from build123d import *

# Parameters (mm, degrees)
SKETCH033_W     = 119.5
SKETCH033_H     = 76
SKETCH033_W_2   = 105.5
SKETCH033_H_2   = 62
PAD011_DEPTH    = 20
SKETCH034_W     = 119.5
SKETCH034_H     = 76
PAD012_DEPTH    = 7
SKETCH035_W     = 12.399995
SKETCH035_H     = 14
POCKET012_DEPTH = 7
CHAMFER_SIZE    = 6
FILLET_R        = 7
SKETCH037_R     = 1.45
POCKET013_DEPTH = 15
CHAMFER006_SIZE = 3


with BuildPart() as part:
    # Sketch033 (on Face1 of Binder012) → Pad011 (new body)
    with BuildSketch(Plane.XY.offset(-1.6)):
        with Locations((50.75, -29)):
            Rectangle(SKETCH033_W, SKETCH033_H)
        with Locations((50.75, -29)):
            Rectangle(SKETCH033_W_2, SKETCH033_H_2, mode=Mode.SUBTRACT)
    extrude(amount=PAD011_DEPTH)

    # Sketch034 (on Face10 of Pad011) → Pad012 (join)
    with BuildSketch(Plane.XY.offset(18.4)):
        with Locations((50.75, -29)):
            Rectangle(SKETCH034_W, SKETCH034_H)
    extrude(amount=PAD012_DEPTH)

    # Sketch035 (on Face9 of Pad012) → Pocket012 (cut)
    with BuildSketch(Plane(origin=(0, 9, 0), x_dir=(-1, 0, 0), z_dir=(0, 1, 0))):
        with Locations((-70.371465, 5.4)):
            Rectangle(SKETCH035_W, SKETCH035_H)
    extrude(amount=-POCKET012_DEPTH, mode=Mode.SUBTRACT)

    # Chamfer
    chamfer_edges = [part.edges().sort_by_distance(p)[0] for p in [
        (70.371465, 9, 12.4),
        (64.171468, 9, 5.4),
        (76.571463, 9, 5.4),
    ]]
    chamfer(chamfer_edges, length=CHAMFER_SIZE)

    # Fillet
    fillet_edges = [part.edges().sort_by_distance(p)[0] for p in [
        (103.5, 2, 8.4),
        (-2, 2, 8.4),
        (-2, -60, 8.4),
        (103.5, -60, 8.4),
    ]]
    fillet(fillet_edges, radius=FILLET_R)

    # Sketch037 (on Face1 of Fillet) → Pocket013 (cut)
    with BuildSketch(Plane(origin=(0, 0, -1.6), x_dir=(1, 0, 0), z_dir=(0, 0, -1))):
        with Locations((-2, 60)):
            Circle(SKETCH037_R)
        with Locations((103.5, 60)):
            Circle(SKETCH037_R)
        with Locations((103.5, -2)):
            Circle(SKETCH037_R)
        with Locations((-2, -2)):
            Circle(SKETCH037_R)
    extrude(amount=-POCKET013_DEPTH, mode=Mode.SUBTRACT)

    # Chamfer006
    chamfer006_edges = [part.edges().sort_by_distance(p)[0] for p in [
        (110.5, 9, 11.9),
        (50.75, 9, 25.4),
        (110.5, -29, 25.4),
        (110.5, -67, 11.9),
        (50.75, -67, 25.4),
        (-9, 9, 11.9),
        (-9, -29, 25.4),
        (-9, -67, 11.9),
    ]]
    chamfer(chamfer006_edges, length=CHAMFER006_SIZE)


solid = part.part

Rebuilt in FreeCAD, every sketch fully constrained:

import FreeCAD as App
import Part
import Sketcher
from FreeCAD import Vector
Q = App.Units.Quantity


def edges_at(feature, points):
    """Names of the edges that pass closest to the given points."""
    edges = feature.Shape.Edges
    near = lambda p: min(range(len(edges)), key=lambda i: edges[i].distToShape(Part.Vertex(*p))[0])
    return sorted({f"Edge{near(p) + 1}" for p in points})


def add_polygon(sketch, points):
    """Adds a closed chain of lines whose ends are joined by coincident constraints."""
    first, n = sketch.GeometryCount, len(points)
    for a, b in zip(points, points[1:] + points[:1]):
        sketch.addGeometry(Part.LineSegment(App.Vector(*a, 0), App.Vector(*b, 0)), False)
    for i in range(n):
        sketch.addConstraint(Sketcher.Constraint("Coincident", first + i, 2, first + (i + 1) % n, 1))

doc = App.newDocument("Part")
body = doc.addObject("PartDesign::Body", "Body")

# Sketch on XY plane
sketch1 = body.newObject("Sketcher::SketchObject", "Sketch")
sketch1.AttachmentSupport = (doc.getObject("XY_Plane"), [""])
sketch1.MapMode = "FlatFace"
sketch1.AttachmentOffset = App.Placement(Vector(0, 0, -1.6), App.Rotation())
add_polygon(sketch1, [(-9, 9), (-9, -67), (110, -67), (110, 9)])  # lines 0-3
add_polygon(sketch1, [(104, -60), (-2, -60), (-2, 2), (104, 2)])  # lines 4-7
sketch1.addConstraint(Sketcher.Constraint("Vertical", 0))
sketch1.addConstraint(Sketcher.Constraint("Horizontal", 1))
sketch1.addConstraint(Sketcher.Constraint("Vertical", 2))
sketch1.addConstraint(Sketcher.Constraint("Horizontal", 3))
sketch1.addConstraint(Sketcher.Constraint("Horizontal", 4))
sketch1.addConstraint(Sketcher.Constraint("Vertical", 5))
sketch1.addConstraint(Sketcher.Constraint("Horizontal", 6))
sketch1.addConstraint(Sketcher.Constraint("Vertical", 7))
sketch1.addConstraint(Sketcher.Constraint("DistanceY", 0, 2, 0, 1, Q("76 mm")))
sketch1.addConstraint(Sketcher.Constraint("DistanceY", 5, 1, 5, 2, Q("62 mm")))
sketch1.addConstraint(Sketcher.Constraint("DistanceX", 1, 1, 1, 2, Q("119.5 mm")))
sketch1.addConstraint(Sketcher.Constraint("DistanceX", 4, 2, 4, 1, Q("105.5 mm")))
sketch1.addConstraint(Sketcher.Constraint("DistanceX", 0, 2, -1, 1, Q("9 mm")))
sketch1.addConstraint(Sketcher.Constraint("DistanceY", 0, 2, -1, 1, Q("67 mm")))
sketch1.addConstraint(Sketcher.Constraint("DistanceX", 4, 2, -1, 1, Q("2 mm")))
sketch1.addConstraint(Sketcher.Constraint("DistanceY", 4, 2, -1, 1, Q("60 mm")))
pad1 = body.newObject("PartDesign::Pad", "Pad")
pad1.Profile = sketch1
pad1.Length = 20

# Sketch on XY plane
sketch2 = body.newObject("Sketcher::SketchObject", "Sketch001")
sketch2.AttachmentSupport = (doc.getObject("XY_Plane"), [""])
sketch2.MapMode = "FlatFace"
sketch2.AttachmentOffset = App.Placement(Vector(0, 0, 18.4), App.Rotation())
add_polygon(sketch2, [(-9, 9), (-9, -67), (110, -67), (110, 9)])  # lines 0-3
sketch2.addConstraint(Sketcher.Constraint("Vertical", 0))
sketch2.addConstraint(Sketcher.Constraint("Horizontal", 1))
sketch2.addConstraint(Sketcher.Constraint("Vertical", 2))
sketch2.addConstraint(Sketcher.Constraint("Horizontal", 3))
sketch2.addConstraint(Sketcher.Constraint("DistanceY", 0, 2, 0, 1, Q("76 mm")))
sketch2.addConstraint(Sketcher.Constraint("DistanceX", 1, 1, 1, 2, Q("119.5 mm")))
sketch2.addConstraint(Sketcher.Constraint("DistanceX", 0, 2, -1, 1, Q("9 mm")))
sketch2.addConstraint(Sketcher.Constraint("DistanceY", 0, 2, -1, 1, Q("67 mm")))
pad2 = body.newObject("PartDesign::Pad", "Pad001")
pad2.Profile = sketch2
pad2.Length = 7

# Sketch on XZ plane
sketch3 = body.newObject("Sketcher::SketchObject", "Sketch002")
sketch3.AttachmentSupport = (doc.getObject("XZ_Plane"), [""])
sketch3.MapMode = "FlatFace"
sketch3.AttachmentOffset = App.Placement(Vector(0, 0, -9), App.Rotation())
add_polygon(sketch3, [(77, 12), (77, -2), (64, -2), (64, 12)])  # lines 0-3
sketch3.addConstraint(Sketcher.Constraint("Vertical", 0))
sketch3.addConstraint(Sketcher.Constraint("Horizontal", 1))
sketch3.addConstraint(Sketcher.Constraint("Vertical", 2))
sketch3.addConstraint(Sketcher.Constraint("Horizontal", 3))
sketch3.addConstraint(Sketcher.Constraint("DistanceY", 0, 2, 0, 1, Q("14 mm")))
sketch3.addConstraint(Sketcher.Constraint("DistanceY", 0, 2, -1, 1, Q("1.6 mm")))
sketch3.addConstraint(Sketcher.Constraint("DistanceX", 1, 2, 1, 1, Q("12.399995 mm")))
sketch3.addConstraint(Sketcher.Constraint("DistanceX", -1, 1, 0, 2, Q("76.571462 mm")))
pocket1 = body.newObject("PartDesign::Pocket", "Pocket")
pocket1.Profile = sketch3
pocket1.Length = 7
pocket1.Reversed = True
doc.recompute()

chamfer = body.newObject("PartDesign::Chamfer", "Chamfer")
chamfer.Base = (pocket1, edges_at(pocket1, [(70.371, 9, 12.4), (64.171, 9, 5.4), (76.571, 9, 5.4)]))
chamfer.Size = 6
doc.recompute()

fillet = body.newObject("PartDesign::Fillet", "Fillet")
fillet.Base = (chamfer, edges_at(chamfer, [
    (103.5, 2, 8.4),
    (-2, 2, 8.4),
    (-2, -60, 8.4),
    (103.5, -60, 8.4),
]))
fillet.Radius = 7

# Sketch on XY plane
sketch4 = body.newObject("Sketcher::SketchObject", "Sketch003")
sketch4.AttachmentSupport = (doc.getObject("XY_Plane"), [""])
sketch4.MapMode = "FlatFace"
sketch4.AttachmentOffset = App.Placement(Vector(0, 0, -1.6), App.Rotation())
sketch4.addGeometry(Part.Circle(Vector(-2, -60, 0), Vector(0, 0, 1), 1.4), False)
sketch4.addGeometry(Part.Circle(Vector(103.5, -60, 0), Vector(0, 0, 1), 1.4), False)
sketch4.addGeometry(Part.Circle(Vector(103.5, 2, 0), Vector(0, 0, 1), 1.4), False)
sketch4.addGeometry(Part.Circle(Vector(-2, 2, 0), Vector(0, 0, 1), 1.4), False)
sketch4.addConstraint(Sketcher.Constraint("Equal", 0, 1))
sketch4.addConstraint(Sketcher.Constraint("Equal", 1, 2))
sketch4.addConstraint(Sketcher.Constraint("Equal", 2, 3))
sketch4.addConstraint(Sketcher.Constraint("Horizontal", 0, 3, 1, 3))
sketch4.addConstraint(Sketcher.Constraint("Horizontal", 2, 3, 3, 3))
sketch4.addConstraint(Sketcher.Constraint("Vertical", 1, 3, 2, 3))
sketch4.addConstraint(Sketcher.Constraint("Vertical", 0, 3, 3, 3))
sketch4.addConstraint(Sketcher.Constraint("Diameter", 0, Q("2.9 mm")))
sketch4.addConstraint(Sketcher.Constraint("DistanceX", 0, 3, -1, 1, Q("2 mm")))
sketch4.addConstraint(Sketcher.Constraint("DistanceY", 0, 3, -1, 1, Q("60 mm")))
sketch4.addConstraint(Sketcher.Constraint("DistanceY", -1, 1, 2, 3, Q("2 mm")))
sketch4.addConstraint(Sketcher.Constraint("DistanceX", -1, 1, 1, 3, Q("103.5 mm")))
pocket2 = body.newObject("PartDesign::Pocket", "Pocket001")
pocket2.Profile = sketch4
pocket2.Length = 15
pocket2.Reversed = True
doc.recompute()

chamfer2 = body.newObject("PartDesign::Chamfer", "Chamfer001")
chamfer2.Base = (pocket2, edges_at(pocket2, [
    (110.5, 9, 11.9),
    (50.75, 9, 25.4),
    (110.5, -29, 25.4),
    (110.5, -67, 11.9),
    (50.75, -67, 25.4),
    (-9, 9, 11.9),
    (-9, -29, 25.4),
    (-9, -67, 11.9),
]))
chamfer2.Size = 3

doc.recompute()
